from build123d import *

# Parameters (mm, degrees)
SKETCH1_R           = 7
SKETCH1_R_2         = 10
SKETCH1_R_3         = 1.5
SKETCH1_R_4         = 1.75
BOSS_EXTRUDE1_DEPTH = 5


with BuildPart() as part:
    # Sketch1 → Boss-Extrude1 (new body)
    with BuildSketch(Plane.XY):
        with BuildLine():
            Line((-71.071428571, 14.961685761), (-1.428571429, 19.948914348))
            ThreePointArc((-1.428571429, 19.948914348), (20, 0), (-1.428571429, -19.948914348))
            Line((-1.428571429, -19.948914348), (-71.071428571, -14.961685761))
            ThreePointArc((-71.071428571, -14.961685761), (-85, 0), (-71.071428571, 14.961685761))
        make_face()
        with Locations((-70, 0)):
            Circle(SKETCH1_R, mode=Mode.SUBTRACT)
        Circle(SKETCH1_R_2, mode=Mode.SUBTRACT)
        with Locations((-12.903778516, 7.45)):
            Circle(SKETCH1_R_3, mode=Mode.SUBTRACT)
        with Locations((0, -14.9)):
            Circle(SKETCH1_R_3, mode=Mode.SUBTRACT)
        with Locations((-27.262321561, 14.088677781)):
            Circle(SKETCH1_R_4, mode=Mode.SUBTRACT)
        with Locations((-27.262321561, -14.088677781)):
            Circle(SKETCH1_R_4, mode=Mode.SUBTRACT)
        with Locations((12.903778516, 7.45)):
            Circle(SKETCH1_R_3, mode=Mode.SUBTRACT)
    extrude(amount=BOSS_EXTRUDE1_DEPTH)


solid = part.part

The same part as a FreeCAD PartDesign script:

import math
import FreeCAD as App
import Part
import Sketcher

V = App.Vector

doc = App.newDocument("Part")
body = doc.addObject("PartDesign::Body", "Body")

# Sketch on XY plane
sketch1 = body.newObject("Sketcher::SketchObject", "Sketch")
sketch1.AttachmentSupport = (doc.getObject("XY_Plane"), [""])
sketch1.MapMode = "FlatFace"
sketch1.addGeometry(Part.LineSegment(V(-1.4, 19.9, 0), V(-71.1, 15, 0)), False)
sketch1.addGeometry(Part.ArcOfCircle(Part.Circle(V(-70, 0, 0), V(0, 0, 1), 15), math.radians(94), math.radians(266)), False)
sketch1.addGeometry(Part.LineSegment(V(-71.1, -15, 0), V(-1.4, -19.9, 0)), False)
sketch1.addGeometry(Part.ArcOfCircle(Part.Circle(V(0, 0, 0), V(0, 0, 1), 20), math.radians(-94), math.radians(94)), False)
sketch1.addGeometry(Part.Circle(V(0, -14.9, 0), V(0, 0, 1), 1.5), False)
sketch1.addGeometry(Part.Circle(V(-27.3, -14.1, 0), V(0, 0, 1), 1.8), False)
sketch1.addGeometry(Part.Circle(V(0, 0, 0), V(0, 0, 1), 10), False)
sketch1.addGeometry(Part.Circle(V(12.9, 7.5, 0), V(0, 0, 1), 1.5), False)
sketch1.addGeometry(Part.Circle(V(-12.9, 7.5, 0), V(0, 0, 1), 1.5), False)
sketch1.addGeometry(Part.Circle(V(-27.3, 14.1, 0), V(0, 0, 1), 1.8), False)
sketch1.addGeometry(Part.Circle(V(-70, 0, 0), V(0, 0, 1), 7), False)
sketch1.addConstraint(Sketcher.Constraint("Tangent", 0, 2, 1, 1))
sketch1.addConstraint(Sketcher.Constraint("Tangent", 1, 2, 2, 1))
sketch1.addConstraint(Sketcher.Constraint("Tangent", 2, 2, 3, 1))
sketch1.addConstraint(Sketcher.Constraint("Tangent", 3, 2, 0, 1))
sketch1.addConstraint(Sketcher.Constraint("Coincident", 3, 3, -1, 1))
sketch1.addConstraint(Sketcher.Constraint("Coincident", 6, 3, -1, 1))
sketch1.addConstraint(Sketcher.Constraint("Coincident", 10, 3, 1, 3))
sketch1.addConstraint(Sketcher.Constraint("Equal", 4, 7))
sketch1.addConstraint(Sketcher.Constraint("Equal", 7, 8))
sketch1.addConstraint(Sketcher.Constraint("Equal", 5, 9))
sketch1.addConstraint(Sketcher.Constraint("Symmetric", 7, 3, 8, 3, -2))
sketch1.addConstraint(Sketcher.Constraint("Symmetric", 5, 3, 9, 3, -1))
sketch1.addConstraint(Sketcher.Constraint("PointOnObject", 1, 3, -1))
sketch1.addConstraint(Sketcher.Constraint("PointOnObject", 4, 3, -2))
sketch1.addConstraint(Sketcher.Constraint("Diameter", 4, 3.0))
sketch1.addConstraint(Sketcher.Constraint("Diameter", 6, 20.0))
sketch1.addConstraint(Sketcher.Constraint("Diameter", 10, 14.0))
sketch1.addConstraint(Sketcher.Constraint("Radius", 1, 15.0))
sketch1.addConstraint(Sketcher.Constraint("Radius", 3, 20.0))
sketch1.addConstraint(Sketcher.Constraint("Diameter", 5, 3.5))
sketch1.addConstraint(Sketcher.Constraint("DistanceX", 1, 3, -1, 1, 70.0))
sketch1.addConstraint(Sketcher.Constraint("DistanceY", 4, 3, -1, 1, 14.9))
sketch1.addConstraint(Sketcher.Constraint("DistanceY", -1, 1, 7, 3, 7.45))
sketch1.addConstraint(Sketcher.Constraint("DistanceX", 5, 3, 7, 3, 40.1661))
sketch1.addConstraint(Sketcher.Constraint("DistanceX", 5, 3, -1, 1, 27.262322))
sketch1.addConstraint(Sketcher.Constraint("DistanceY", 5, 3, -1, 1, 14.088678))
pad1 = body.newObject("PartDesign::Pad", "Pad")
pad1.Profile = sketch1
pad1.Length = 5

doc.recompute()
